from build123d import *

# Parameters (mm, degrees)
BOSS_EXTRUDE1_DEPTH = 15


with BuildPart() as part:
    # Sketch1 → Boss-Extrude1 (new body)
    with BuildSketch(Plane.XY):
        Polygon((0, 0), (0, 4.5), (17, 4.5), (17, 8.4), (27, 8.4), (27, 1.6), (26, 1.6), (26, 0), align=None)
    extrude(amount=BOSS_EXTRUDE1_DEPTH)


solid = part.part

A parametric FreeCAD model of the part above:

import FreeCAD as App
import Part
import Sketcher
from FreeCAD import Vector
Q = App.Units.Quantity


def add_polygon(sketch, points):
    """Adds a closed chain of lines whose ends are joined by coincident constraints."""
    first, n = sketch.GeometryCount, len(points)
    for a, b in zip(points, points[1:] + points[:1]):
        sketch.addGeometry(Part.LineSegment(App.Vector(*a, 0), App.Vector(*b, 0)), False)
    for i in range(n):
        sketch.addConstraint(Sketcher.Constraint("Coincident", first + i, 2, first + (i + 1) % n, 1))

doc = App.newDocument("Part")
body = doc.addObject("PartDesign::Body", "Body")

# Sketch on XY plane
sketch1 = body.newObject("Sketcher::SketchObject", "Sketch")
sketch1.AttachmentSupport = (doc.getObject("XY_Plane"), [""])
sketch1.MapMode = "FlatFace"
add_polygon(sketch1, [(0, 4.5), (0, 0), (26, 0), (26, 1.6), (27, 1.6), (27, 8.4), (17, 8.4), (17, 4.5)])  # lines 0-7
sketch1.addConstraint(Sketcher.Constraint("Vertical", 0))
sketch1.addConstraint(Sketcher.Constraint("Horizontal", 1))
sketch1.addConstraint(Sketcher.Constraint("Vertical", 2))
sketch1.addConstraint(Sketcher.Constraint("Horizontal", 3))
sketch1.addConstraint(Sketcher.Constraint("Vertical", 4))
sketch1.addConstraint(Sketcher.Constraint("Horizontal", 5))
sketch1.addConstraint(Sketcher.Constraint("Vertical", 6))
sketch1.addConstraint(Sketcher.Constraint("Horizontal", 7))
sketch1.addConstraint(Sketcher.Constraint("Coincident", 0, 2, -1, 1))
sketch1.addConstraint(Sketcher.Constraint("DistanceX", 1, 1, 1, 2, Q("26 mm")))
sketch1.addConstraint(Sketcher.Constraint("DistanceX", 3, 1, 3, 2, Q("1 mm")))
sketch1.addConstraint(Sketcher.Constraint("DistanceX", 5, 2, 5, 1, Q("10 mm")))
sketch1.addConstraint(Sketcher.Constraint("DistanceY", 0, 2, 0, 1, Q("4.5 mm")))
sketch1.addConstraint(Sketcher.Constraint("DistanceY", 2, 1, 2, 2, Q("1.6 mm")))
sketch1.addConstraint(Sketcher.Constraint("DistanceY", 4, 1, 4, 2, Q("6.8 mm")))
pad1 = body.newObject("PartDesign::Pad", "Pad")
pad1.Profile = sketch1
pad1.Length = 15

doc.recompute()
